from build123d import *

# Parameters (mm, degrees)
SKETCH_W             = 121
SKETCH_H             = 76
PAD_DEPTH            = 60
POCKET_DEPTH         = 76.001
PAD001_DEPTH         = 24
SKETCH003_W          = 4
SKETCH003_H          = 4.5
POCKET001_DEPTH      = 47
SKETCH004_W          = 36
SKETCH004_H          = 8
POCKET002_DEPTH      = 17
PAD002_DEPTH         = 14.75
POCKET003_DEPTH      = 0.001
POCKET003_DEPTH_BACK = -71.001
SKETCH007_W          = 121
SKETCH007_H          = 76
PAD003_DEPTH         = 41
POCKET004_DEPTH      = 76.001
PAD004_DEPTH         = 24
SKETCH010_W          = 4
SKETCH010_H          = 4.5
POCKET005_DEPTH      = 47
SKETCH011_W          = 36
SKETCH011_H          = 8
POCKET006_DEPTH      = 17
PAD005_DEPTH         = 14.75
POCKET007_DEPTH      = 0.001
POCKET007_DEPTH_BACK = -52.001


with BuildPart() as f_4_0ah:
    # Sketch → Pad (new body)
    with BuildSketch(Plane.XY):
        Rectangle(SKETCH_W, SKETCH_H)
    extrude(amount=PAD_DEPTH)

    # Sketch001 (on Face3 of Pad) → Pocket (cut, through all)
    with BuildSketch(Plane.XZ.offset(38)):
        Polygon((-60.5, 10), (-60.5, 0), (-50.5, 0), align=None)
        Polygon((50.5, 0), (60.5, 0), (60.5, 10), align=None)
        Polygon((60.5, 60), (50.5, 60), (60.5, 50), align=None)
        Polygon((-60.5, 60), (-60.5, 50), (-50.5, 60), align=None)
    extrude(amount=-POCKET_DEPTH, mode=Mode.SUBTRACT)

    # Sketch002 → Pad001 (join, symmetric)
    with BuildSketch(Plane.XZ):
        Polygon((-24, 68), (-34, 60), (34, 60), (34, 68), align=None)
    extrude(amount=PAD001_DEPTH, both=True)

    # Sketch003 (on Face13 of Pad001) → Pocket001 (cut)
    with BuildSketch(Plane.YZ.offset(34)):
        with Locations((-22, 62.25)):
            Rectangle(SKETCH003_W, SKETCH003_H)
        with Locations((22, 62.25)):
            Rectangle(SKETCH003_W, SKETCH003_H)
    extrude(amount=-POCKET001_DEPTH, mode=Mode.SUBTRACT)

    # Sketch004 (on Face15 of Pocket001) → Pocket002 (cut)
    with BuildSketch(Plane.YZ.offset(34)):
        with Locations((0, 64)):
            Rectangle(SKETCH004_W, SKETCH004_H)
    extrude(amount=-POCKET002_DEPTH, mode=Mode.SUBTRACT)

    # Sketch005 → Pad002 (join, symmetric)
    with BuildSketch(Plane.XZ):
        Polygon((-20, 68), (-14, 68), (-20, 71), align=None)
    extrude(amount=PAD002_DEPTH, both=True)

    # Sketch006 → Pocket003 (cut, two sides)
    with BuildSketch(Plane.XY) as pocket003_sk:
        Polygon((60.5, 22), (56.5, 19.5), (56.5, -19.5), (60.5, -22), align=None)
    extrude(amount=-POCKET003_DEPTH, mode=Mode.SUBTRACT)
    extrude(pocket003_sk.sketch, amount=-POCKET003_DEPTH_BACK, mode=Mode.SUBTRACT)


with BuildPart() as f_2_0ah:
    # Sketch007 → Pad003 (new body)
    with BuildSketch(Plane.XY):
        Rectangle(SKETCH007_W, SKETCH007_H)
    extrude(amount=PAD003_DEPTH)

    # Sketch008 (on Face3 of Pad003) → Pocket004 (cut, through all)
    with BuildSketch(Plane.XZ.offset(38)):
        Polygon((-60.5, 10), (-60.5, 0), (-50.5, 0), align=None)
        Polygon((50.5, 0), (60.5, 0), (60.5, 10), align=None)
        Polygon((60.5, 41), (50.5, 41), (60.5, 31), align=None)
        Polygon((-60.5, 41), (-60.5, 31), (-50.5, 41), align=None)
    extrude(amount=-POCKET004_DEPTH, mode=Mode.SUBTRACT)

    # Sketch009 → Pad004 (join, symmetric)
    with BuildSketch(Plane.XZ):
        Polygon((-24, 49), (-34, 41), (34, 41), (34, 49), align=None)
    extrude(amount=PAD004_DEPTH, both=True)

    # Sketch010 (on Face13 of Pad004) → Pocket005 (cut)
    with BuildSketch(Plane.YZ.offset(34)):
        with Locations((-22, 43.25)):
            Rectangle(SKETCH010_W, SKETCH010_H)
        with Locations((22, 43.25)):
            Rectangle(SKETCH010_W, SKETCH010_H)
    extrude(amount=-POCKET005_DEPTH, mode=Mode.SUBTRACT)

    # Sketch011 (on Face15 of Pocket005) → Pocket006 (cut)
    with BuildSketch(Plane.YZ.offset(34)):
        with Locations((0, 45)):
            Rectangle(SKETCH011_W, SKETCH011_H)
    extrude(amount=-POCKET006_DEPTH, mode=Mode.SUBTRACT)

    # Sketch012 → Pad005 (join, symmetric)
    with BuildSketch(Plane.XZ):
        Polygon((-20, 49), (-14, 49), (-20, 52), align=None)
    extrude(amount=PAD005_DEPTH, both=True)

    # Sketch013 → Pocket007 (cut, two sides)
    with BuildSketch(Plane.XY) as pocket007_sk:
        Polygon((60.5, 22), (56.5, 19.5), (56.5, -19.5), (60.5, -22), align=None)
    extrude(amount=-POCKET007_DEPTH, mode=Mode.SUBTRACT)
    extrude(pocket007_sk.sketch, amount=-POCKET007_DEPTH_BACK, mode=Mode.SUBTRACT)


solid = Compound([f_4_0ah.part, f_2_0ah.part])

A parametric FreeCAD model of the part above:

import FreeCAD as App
import Part
import Sketcher
from FreeCAD import Vector

doc = App.newDocument("Part")
body = doc.addObject("PartDesign::Body", "Body")

sketch1 = body.newObject("Sketcher::SketchObject", "Sketch")
sketch1.AttachmentSupport = (doc.getObject("XY_Plane"), [""])
sketch1.MapMode = "FlatFace"
sketch1.addGeometry(Part.LineSegment(Vector(-60, 38, 0), Vector(-60, -38, 0)), False)
sketch1.addGeometry(Part.LineSegment(Vector(-60, -38, 0), Vector(60, -38, 0)), False)
sketch1.addGeometry(Part.LineSegment(Vector(60, -38, 0), Vector(60, 38, 0)), False)
sketch1.addGeometry(Part.LineSegment(Vector(60, 38, 0), Vector(-60, 38, 0)), False)
sketch1.addConstraint(Sketcher.Constraint("Coincident", 0, 2, 1, 1))
sketch1.addConstraint(Sketcher.Constraint("Coincident", 1, 2, 2, 1))
sketch1.addConstraint(Sketcher.Constraint("Coincident", 2, 2, 3, 1))
sketch1.addConstraint(Sketcher.Constraint("Coincident", 3, 2, 0, 1))
sketch1.addConstraint(Sketcher.Constraint("Vertical", 0))
sketch1.addConstraint(Sketcher.Constraint("Horizontal", 1))
sketch1.addConstraint(Sketcher.Constraint("Vertical", 2))
sketch1.addConstraint(Sketcher.Constraint("Horizontal", 3))
sketch1.addConstraint(Sketcher.Constraint("Symmetric", 0, 2, 2, 2, -1, 1))
sketch1.addConstraint(Sketcher.Constraint("DistanceX", 1, 1, 1, 2, 121.0))
sketch1.addConstraint(Sketcher.Constraint("DistanceY", 0, 2, 0, 1, 76.0))
pad1 = body.newObject("PartDesign::Pad", "Pad")
pad1.Profile = sketch1
pad1.Length = 60

sketch2 = body.newObject("Sketcher::SketchObject", "Sketch001")
sketch2.AttachmentSupport = (doc.getObject("XZ_Plane"), [""])
sketch2.MapMode = "FlatFace"
sketch2.AttachmentOffset = App.Placement(Vector(0, 0, 38), App.Rotation())
sketch2.addGeometry(Part.LineSegment(Vector(-60, 10, 0), Vector(-60, 0, 0)), False)
sketch2.addGeometry(Part.LineSegment(Vector(-60, 0, 0), Vector(-50, 0, 0)), False)
sketch2.addGeometry(Part.LineSegment(Vector(-50, 0, 0), Vector(-60, 10, 0)), False)
sketch2.addGeometry(Part.LineSegment(Vector(50, 0, 0), Vector(60, 0, 0)), False)
sketch2.addGeometry(Part.LineSegment(Vector(60, 0, 0), Vector(60, 10, 0)), False)
sketch2.addGeometry(Part.LineSegment(Vector(60, 10, 0), Vector(50, 0, 0)), False)
sketch2.addGeometry(Part.LineSegment(Vector(60, 60, 0), Vector(50, 60, 0)), False)
sketch2.addGeometry(Part.LineSegment(Vector(50, 60, 0), Vector(60, 50, 0)), False)
sketch2.addGeometry(Part.LineSegment(Vector(60, 50, 0), Vector(60, 60, 0)), False)
sketch2.addGeometry(Part.LineSegment(Vector(-60, 60, 0), Vector(-60, 50, 0)), False)
sketch2.addGeometry(Part.LineSegment(Vector(-60, 50, 0), Vector(-50, 60, 0)), False)
sketch2.addGeometry(Part.LineSegment(Vector(-50, 60, 0), Vector(-60, 60, 0)), False)
sketch2.addConstraint(Sketcher.Constraint("Coincident", 0, 2, 1, 1))
sketch2.addConstraint(Sketcher.Constraint("Coincident", 1, 2, 2, 1))
sketch2.addConstraint(Sketcher.Constraint("Coincident", 2, 2, 0, 1))
sketch2.addConstraint(Sketcher.Constraint("Coincident", 3, 2, 4, 1))
sketch2.addConstraint(Sketcher.Constraint("Coincident", 4, 2, 5, 1))
sketch2.addConstraint(Sketcher.Constraint("Coincident", 5, 2, 3, 1))
sketch2.addConstraint(Sketcher.Constraint("Coincident", 6, 2, 7, 1))
sketch2.addConstraint(Sketcher.Constraint("Coincident", 7, 2, 8, 1))
sketch2.addConstraint(Sketcher.Constraint("Coincident", 8, 2, 6, 1))
sketch2.addConstraint(Sketcher.Constraint("Coincident", 9, 2, 10, 1))
sketch2.addConstraint(Sketcher.Constraint("Coincident", 10, 2, 11, 1))
sketch2.addConstraint(Sketcher.Constraint("Coincident", 11, 2, 9, 1))
sketch2.addConstraint(Sketcher.Constraint("Vertical", 0))
sketch2.addConstraint(Sketcher.Constraint("Horizontal", 1))
sketch2.addConstraint(Sketcher.Constraint("Horizontal", 3))
sketch2.addConstraint(Sketcher.Constraint("Vertical", 4))
sketch2.addConstraint(Sketcher.Constraint("Horizontal", 6))
sketch2.addConstraint(Sketcher.Constraint("Vertical", 8))
sketch2.addConstraint(Sketcher.Constraint("Vertical", 9))
sketch2.addConstraint(Sketcher.Constraint("Horizontal", 11))
sketch2.addConstraint(Sketcher.Constraint("Symmetric", 0, 2, 3, 2, -1, 1))
sketch2.addConstraint(Sketcher.Constraint("Symmetric", 1, 2, 5, 2, -2))
sketch2.addConstraint(Sketcher.Constraint("Symmetric", 7, 2, 9, 2, -2))
sketch2.addConstraint(Sketcher.Constraint("Symmetric", 6, 2, 10, 2, -2))
sketch2.addConstraint(Sketcher.Constraint("Perpendicular", 2, 5))
sketch2.addConstraint(Sketcher.Constraint("Perpendicular", 5, 7))
sketch2.addConstraint(Sketcher.Constraint("Perpendicular", 7, 10))
sketch2.addConstraint(Sketcher.Constraint("Vertical", 5, 2, 6, 2))
sketch2.addConstraint(Sketcher.Constraint("Vertical", 4, 2, 7, 2))
sketch2.addConstraint(Sketcher.Constraint("DistanceX", 1, 1, 1, 2, 10.0))
sketch2.addConstraint(Sketcher.Constraint("DistanceY", -1, 1, 6, 2, 60.0))
sketch2.addConstraint(Sketcher.Constraint("DistanceX", 1, 2, 3, 2, 111.0))
pocket1 = body.newObject("PartDesign::Pocket", "Pocket")
pocket1.Profile = sketch2
pocket1.Type = "ThroughAll"

sketch3 = body.newObject("Sketcher::SketchObject", "Sketch002")
sketch3.AttachmentSupport = (doc.getObject("XZ_Plane"), [""])
sketch3.MapMode = "FlatFace"
sketch3.addGeometry(Part.LineSegment(Vector(-24, 68, 0), Vector(-34, 60, 0)), False)
sketch3.addGeometry(Part.LineSegment(Vector(-34, 60, 0), Vector(34, 60, 0)), False)
sketch3.addGeometry(Part.LineSegment(Vector(34, 60, 0), Vector(34, 68, 0)), False)
sketch3.addGeometry(Part.LineSegment(Vector(34, 68, 0), Vector(-24, 68, 0)), False)
sketch3.addConstraint(Sketcher.Constraint("Coincident", 0, 2, 1, 1))
sketch3.addConstraint(Sketcher.Constraint("Coincident", 1, 2, 2, 1))
sketch3.addConstraint(Sketcher.Constraint("Coincident", 2, 2, 3, 1))
sketch3.addConstraint(Sketcher.Constraint("Coincident", 3, 2, 0, 1))
sketch3.addConstraint(Sketcher.Constraint("Horizontal", 1))
sketch3.addConstraint(Sketcher.Constraint("Vertical", 2))
sketch3.addConstraint(Sketcher.Constraint("Horizontal", 3))
sketch3.addConstraint(Sketcher.Constraint("DistanceX", 1, 1, 1, 2, 68.0))
sketch3.addConstraint(Sketcher.Constraint("DistanceX", 3, 2, 3, 1, 58.0))
sketch3.addConstraint(Sketcher.Constraint("DistanceY", 2, 1, 2, 2, 8.0))
sketch3.addConstraint(Sketcher.Constraint("DistanceX", 0, 2, -1, 1, 34.0))
sketch3.addConstraint(Sketcher.Constraint("DistanceY", -1, 1, 0, 2, 60.0))
pad2 = body.newObject("PartDesign::Pad", "Pad001")
pad2.Profile = sketch3
pad2.Length = 48
pad2.Midplane = True

sketch4 = body.newObject("Sketcher::SketchObject", "Sketch003")
sketch4.AttachmentSupport = (doc.getObject("YZ_Plane"), [""])
sketch4.MapMode = "FlatFace"
sketch4.AttachmentOffset = App.Placement(Vector(0, 0, 34), App.Rotation())
sketch4.addGeometry(Part.LineSegment(Vector(-24, 64.5, 0), Vector(-24, 60, 0)), False)
sketch4.addGeometry(Part.LineSegment(Vector(-24, 60, 0), Vector(-20, 60, 0)), False)
sketch4.addGeometry(Part.LineSegment(Vector(-20, 60, 0), Vector(-20, 64.5, 0)), False)
sketch4.addGeometry(Part.LineSegment(Vector(-20, 64.5, 0), Vector(-24, 64.5, 0)), False)
sketch4.addGeometry(Part.LineSegment(Vector(20, 64.5, 0), Vector(20, 60, 0)), False)
sketch4.addGeometry(Part.LineSegment(Vector(20, 60, 0), Vector(24, 60, 0)), False)
sketch4.addGeometry(Part.LineSegment(Vector(24, 60, 0), Vector(24, 64.5, 0)), False)
sketch4.addGeometry(Part.LineSegment(Vector(24, 64.5, 0), Vector(20, 64.5, 0)), False)
sketch4.addConstraint(Sketcher.Constraint("Coincident", 0, 2, 1, 1))
sketch4.addConstraint(Sketcher.Constraint("Coincident", 1, 2, 2, 1))
sketch4.addConstraint(Sketcher.Constraint("Coincident", 2, 2, 3, 1))
sketch4.addConstraint(Sketcher.Constraint("Coincident", 3, 2, 0, 1))
sketch4.addConstraint(Sketcher.Constraint("Coincident", 4, 2, 5, 1))
sketch4.addConstraint(Sketcher.Constraint("Coincident", 5, 2, 6, 1))
sketch4.addConstraint(Sketcher.Constraint("Coincident", 6, 2, 7, 1))
sketch4.addConstraint(Sketcher.Constraint("Coincident", 7, 2, 4, 1))
sketch4.addConstraint(Sketcher.Constraint("Vertical", 0))
sketch4.addConstraint(Sketcher.Constraint("Horizontal", 1))
sketch4.addConstraint(Sketcher.Constraint("Vertical", 2))
sketch4.addConstraint(Sketcher.Constraint("Horizontal", 3))
sketch4.addConstraint(Sketcher.Constraint("Vertical", 4))
sketch4.addConstraint(Sketcher.Constraint("Horizontal", 5))
sketch4.addConstraint(Sketcher.Constraint("Vertical", 6))
sketch4.addConstraint(Sketcher.Constraint("Horizontal", 7))
sketch4.addConstraint(Sketcher.Constraint("Symmetric", 1, 2, 4, 2, -2))
sketch4.addConstraint(Sketcher.Constraint("Symmetric", 3, 2, 6, 2, -2))
sketch4.addConstraint(Sketcher.Constraint("DistanceX", 1, 1, 1, 2, 4.0))
sketch4.addConstraint(Sketcher.Constraint("DistanceY", 0, 2, 0, 1, 4.5))
sketch4.addConstraint(Sketcher.Constraint("DistanceX", 0, 2, -1, 1, 24.0))
sketch4.addConstraint(Sketcher.Constraint("DistanceY", -1, 1, 0, 2, 60.0))
pocket2 = body.newObject("PartDesign::Pocket", "Pocket001")
pocket2.Profile = sketch4
pocket2.Length = 47

sketch5 = body.newObject("Sketcher::SketchObject", "Sketch004")
sketch5.AttachmentSupport = (doc.getObject("YZ_Plane"), [""])
sketch5.MapMode = "FlatFace"
sketch5.AttachmentOffset = App.Placement(Vector(0, 0, 34), App.Rotation())
sketch5.addGeometry(Part.LineSegment(Vector(-18, 68, 0), Vector(-18, 60, 0)), False)
sketch5.addGeometry(Part.LineSegment(Vector(-18, 60, 0), Vector(18, 60, 0)), False)
sketch5.addGeometry(Part.LineSegment(Vector(18, 60, 0), Vector(18, 68, 0)), False)
sketch5.addGeometry(Part.LineSegment(Vector(18, 68, 0), Vector(-18, 68, 0)), False)
sketch5.addConstraint(Sketcher.Constraint("Coincident", 0, 2, 1, 1))
sketch5.addConstraint(Sketcher.Constraint("Coincident", 1, 2, 2, 1))
sketch5.addConstraint(Sketcher.Constraint("Coincident", 2, 2, 3, 1))
sketch5.addConstraint(Sketcher.Constraint("Coincident", 3, 2, 0, 1))
sketch5.addConstraint(Sketcher.Constraint("Vertical", 0))
sketch5.addConstraint(Sketcher.Constraint("Horizontal", 1))
sketch5.addConstraint(Sketcher.Constraint("Vertical", 2))
sketch5.addConstraint(Sketcher.Constraint("Horizontal", 3))
sketch5.addConstraint(Sketcher.Constraint("DistanceX", 1, 1, 1, 2, 36.0))
sketch5.addConstraint(Sketcher.Constraint("DistanceY", 0, 2, 0, 1, 8.0))
sketch5.addConstraint(Sketcher.Constraint("DistanceX", 0, 2, -1, 1, 18.0))
sketch5.addConstraint(Sketcher.Constraint("DistanceY", -1, 1, 0, 2, 60.0))
pocket3 = body.newObject("PartDesign::Pocket", "Pocket002")
pocket3.Profile = sketch5
pocket3.Length = 17

sketch6 = body.newObject("Sketcher::SketchObject", "Sketch005")
sketch6.AttachmentSupport = (doc.getObject("XZ_Plane"), [""])
sketch6.MapMode = "FlatFace"
sketch6.addGeometry(Part.LineSegment(Vector(-20, 68, 0), Vector(-14, 68, 0)), False)
sketch6.addGeometry(Part.LineSegment(Vector(-14, 68, 0), Vector(-20, 71, 0)), False)
sketch6.addGeometry(Part.LineSegment(Vector(-20, 71, 0), Vector(-20, 68, 0)), False)
sketch6.addConstraint(Sketcher.Constraint("Coincident", 0, 2, 1, 1))
sketch6.addConstraint(Sketcher.Constraint("Coincident", 1, 2, 2, 1))
sketch6.addConstraint(Sketcher.Constraint("Coincident", 2, 2, 0, 1))
sketch6.addConstraint(Sketcher.Constraint("Horizontal", 0))
sketch6.addConstraint(Sketcher.Constraint("Vertical", 2))
sketch6.addConstraint(Sketcher.Constraint("DistanceX", 0, 1, 0, 2, 6.0))
sketch6.addConstraint(Sketcher.Constraint("DistanceY", 2, 2, 2, 1, 3.0))
sketch6.addConstraint(Sketcher.Constraint("DistanceX", 0, 2, -1, 1, 14.0))
sketch6.addConstraint(Sketcher.Constraint("DistanceY", -1, 1, 0, 2, 68.0))
pad3 = body.newObject("PartDesign::Pad", "Pad002")
pad3.Profile = sketch6
pad3.Length = 29.5
pad3.Midplane = True

sketch7 = body.newObject("Sketcher::SketchObject", "Sketch006")
sketch7.AttachmentSupport = (doc.getObject("XY_Plane"), [""])
sketch7.MapMode = "FlatFace"
sketch7.addGeometry(Part.LineSegment(Vector(60.5, 22, 0), Vector(56.5, 19.5, 0)), False)
sketch7.addGeometry(Part.LineSegment(Vector(56.5, 19.5, 0), Vector(56.5, -19.5, 0)), False)
sketch7.addGeometry(Part.LineSegment(Vector(56.5, -19.5, 0), Vector(60.5, -22, 0)), False)
sketch7.addGeometry(Part.LineSegment(Vector(60.5, -22, 0), Vector(60.5, 22, 0)), False)
sketch7.addConstraint(Sketcher.Constraint("Coincident", 0, 2, 1, 1))
sketch7.addConstraint(Sketcher.Constraint("Coincident", 1, 2, 2, 1))
sketch7.addConstraint(Sketcher.Constraint("Coincident", 2, 2, 3, 1))
sketch7.addConstraint(Sketcher.Constraint("Coincident", 3, 2, 0, 1))
sketch7.addConstraint(Sketcher.Constraint("Vertical", 1))
sketch7.addConstraint(Sketcher.Constraint("Vertical", 3))
sketch7.addConstraint(Sketcher.Constraint("Equal", 0, 2))
sketch7.addConstraint(Sketcher.Constraint("DistanceY", 1, 2, 1, 1, 39.0))
sketch7.addConstraint(Sketcher.Constraint("DistanceY", 3, 1, 3, 2, 44.0))
sketch7.addConstraint(Sketcher.Constraint("DistanceY", 2, 2, -1, 1, 22.0))
sketch7.addConstraint(Sketcher.Constraint("DistanceX", 1, 2, 2, 2, 4.0))
sketch7.addConstraint(Sketcher.Constraint("DistanceX", -1, 1, 0, 2, 56.5))
pocket4 = body.newObject("PartDesign::Pocket", "Pocket003")
pocket4.Profile = sketch7
pocket4.Type = "ThroughAll"
pocket4.Midplane = True
body2 = doc.addObject("PartDesign::Body", "Body001")

sketch8 = body2.newObject("Sketcher::SketchObject", "Sketch007")
sketch8.AttachmentSupport = (doc.getObject("XY_Plane001"), [""])
sketch8.MapMode = "FlatFace"
sketch8.addGeometry(Part.LineSegment(Vector(-60, 38, 0), Vector(-60, -38, 0)), False)
sketch8.addGeometry(Part.LineSegment(Vector(-60, -38, 0), Vector(60, -38, 0)), False)
sketch8.addGeometry(Part.LineSegment(Vector(60, -38, 0), Vector(60, 38, 0)), False)
sketch8.addGeometry(Part.LineSegment(Vector(60, 38, 0), Vector(-60, 38, 0)), False)
sketch8.addConstraint(Sketcher.Constraint("Coincident", 0, 2, 1, 1))
sketch8.addConstraint(Sketcher.Constraint("Coincident", 1, 2, 2, 1))
sketch8.addConstraint(Sketcher.Constraint("Coincident", 2, 2, 3, 1))
sketch8.addConstraint(Sketcher.Constraint("Coincident", 3, 2, 0, 1))
sketch8.addConstraint(Sketcher.Constraint("Vertical", 0))
sketch8.addConstraint(Sketcher.Constraint("Horizontal", 1))
sketch8.addConstraint(Sketcher.Constraint("Vertical", 2))
sketch8.addConstraint(Sketcher.Constraint("Horizontal", 3))
sketch8.addConstraint(Sketcher.Constraint("Symmetric", 0, 2, 2, 2, -1, 1))
sketch8.addConstraint(Sketcher.Constraint("DistanceX", 1, 1, 1, 2, 121.0))
sketch8.addConstraint(Sketcher.Constraint("DistanceY", 0, 2, 0, 1, 76.0))
pad4 = body2.newObject("PartDesign::Pad", "Pad003")
pad4.Profile = sketch8
pad4.Length = 41

sketch9 = body2.newObject("Sketcher::SketchObject", "Sketch008")
sketch9.AttachmentSupport = (doc.getObject("XZ_Plane001"), [""])
sketch9.MapMode = "FlatFace"
sketch9.AttachmentOffset = App.Placement(Vector(0, 0, 38), App.Rotation())
sketch9.addGeometry(Part.LineSegment(Vector(-60, 10, 0), Vector(-60, 0, 0)), False)
sketch9.addGeometry(Part.LineSegment(Vector(-60, 0, 0), Vector(-50, 0, 0)), False)
sketch9.addGeometry(Part.LineSegment(Vector(-50, 0, 0), Vector(-60, 10, 0)), False)
sketch9.addGeometry(Part.LineSegment(Vector(50, 0, 0), Vector(60, 0, 0)), False)
sketch9.addGeometry(Part.LineSegment(Vector(60, 0, 0), Vector(60, 10, 0)), False)
sketch9.addGeometry(Part.LineSegment(Vector(60, 10, 0), Vector(50, 0, 0)), False)
sketch9.addGeometry(Part.LineSegment(Vector(60, 41, 0), Vector(50, 41, 0)), False)
sketch9.addGeometry(Part.LineSegment(Vector(50, 41, 0), Vector(60, 31, 0)), False)
sketch9.addGeometry(Part.LineSegment(Vector(60, 31, 0), Vector(60, 41, 0)), False)
sketch9.addGeometry(Part.LineSegment(Vector(-60, 41, 0), Vector(-60, 31, 0)), False)
sketch9.addGeometry(Part.LineSegment(Vector(-60, 31, 0), Vector(-50, 41, 0)), False)
sketch9.addGeometry(Part.LineSegment(Vector(-50, 41, 0), Vector(-60, 41, 0)), False)
sketch9.addConstraint(Sketcher.Constraint("Coincident", 0, 2, 1, 1))
sketch9.addConstraint(Sketcher.Constraint("Coincident", 1, 2, 2, 1))
sketch9.addConstraint(Sketcher.Constraint("Coincident", 2, 2, 0, 1))
sketch9.addConstraint(Sketcher.Constraint("Coincident", 3, 2, 4, 1))
sketch9.addConstraint(Sketcher.Constraint("Coincident", 4, 2, 5, 1))
sketch9.addConstraint(Sketcher.Constraint("Coincident", 5, 2, 3, 1))
sketch9.addConstraint(Sketcher.Constraint("Coincident", 6, 2, 7, 1))
sketch9.addConstraint(Sketcher.Constraint("Coincident", 7, 2, 8, 1))
sketch9.addConstraint(Sketcher.Constraint("Coincident", 8, 2, 6, 1))
sketch9.addConstraint(Sketcher.Constraint("Coincident", 9, 2, 10, 1))
sketch9.addConstraint(Sketcher.Constraint("Coincident", 10, 2, 11, 1))
sketch9.addConstraint(Sketcher.Constraint("Coincident", 11, 2, 9, 1))
sketch9.addConstraint(Sketcher.Constraint("Vertical", 0))
sketch9.addConstraint(Sketcher.Constraint("Horizontal", 1))
sketch9.addConstraint(Sketcher.Constraint("Horizontal", 3))
sketch9.addConstraint(Sketcher.Constraint("Vertical", 4))
sketch9.addConstraint(Sketcher.Constraint("Horizontal", 6))
sketch9.addConstraint(Sketcher.Constraint("Vertical", 8))
sketch9.addConstraint(Sketcher.Constraint("Vertical", 9))
sketch9.addConstraint(Sketcher.Constraint("Horizontal", 11))
sketch9.addConstraint(Sketcher.Constraint("Symmetric", 0, 2, 3, 2, -1, 1))
sketch9.addConstraint(Sketcher.Constraint("Symmetric", 1, 2, 5, 2, -2))
sketch9.addConstraint(Sketcher.Constraint("Symmetric", 7, 2, 9, 2, -2))
sketch9.addConstraint(Sketcher.Constraint("Symmetric", 6, 2, 10, 2, -2))
sketch9.addConstraint(Sketcher.Constraint("Perpendicular", 2, 5))
sketch9.addConstraint(Sketcher.Constraint("Perpendicular", 5, 7))
sketch9.addConstraint(Sketcher.Constraint("Perpendicular", 7, 10))
sketch9.addConstraint(Sketcher.Constraint("Vertical", 5, 2, 6, 2))
sketch9.addConstraint(Sketcher.Constraint("Vertical", 4, 2, 7, 2))
sketch9.addConstraint(Sketcher.Constraint("DistanceX", 1, 1, 1, 2, 10.0))
sketch9.addConstraint(Sketcher.Constraint("DistanceY", -1, 1, 6, 2, 41.0))
sketch9.addConstraint(Sketcher.Constraint("DistanceX", 1, 2, 3, 2, 111.0))
pocket5 = body2.newObject("PartDesign::Pocket", "Pocket004")
pocket5.Profile = sketch9
pocket5.Type = "ThroughAll"

sketch10 = body2.newObject("Sketcher::SketchObject", "Sketch009")
sketch10.AttachmentSupport = (doc.getObject("XZ_Plane001"), [""])
sketch10.MapMode = "FlatFace"
sketch10.addGeometry(Part.LineSegment(Vector(-24, 49, 0), Vector(-34, 41, 0)), False)
sketch10.addGeometry(Part.LineSegment(Vector(-34, 41, 0), Vector(34, 41, 0)), False)
sketch10.addGeometry(Part.LineSegment(Vector(34, 41, 0), Vector(34, 49, 0)), False)
sketch10.addGeometry(Part.LineSegment(Vector(34, 49, 0), Vector(-24, 49, 0)), False)
sketch10.addConstraint(Sketcher.Constraint("Coincident", 0, 2, 1, 1))
sketch10.addConstraint(Sketcher.Constraint("Coincident", 1, 2, 2, 1))
sketch10.addConstraint(Sketcher.Constraint("Coincident", 2, 2, 3, 1))
sketch10.addConstraint(Sketcher.Constraint("Coincident", 3, 2, 0, 1))
sketch10.addConstraint(Sketcher.Constraint("Horizontal", 1))
sketch10.addConstraint(Sketcher.Constraint("Vertical", 2))
sketch10.addConstraint(Sketcher.Constraint("Horizontal", 3))
sketch10.addConstraint(Sketcher.Constraint("DistanceX", 1, 1, 1, 2, 68.0))
sketch10.addConstraint(Sketcher.Constraint("DistanceX", 3, 2, 3, 1, 58.0))
sketch10.addConstraint(Sketcher.Constraint("DistanceY", 2, 1, 2, 2, 8.0))
sketch10.addConstraint(Sketcher.Constraint("DistanceX", 0, 2, -1, 1, 34.0))
sketch10.addConstraint(Sketcher.Constraint("DistanceY", -1, 1, 0, 2, 41.0))
pad5 = body2.newObject("PartDesign::Pad", "Pad004")
pad5.Profile = sketch10
pad5.Length = 48
pad5.Midplane = True

sketch11 = body2.newObject("Sketcher::SketchObject", "Sketch010")
sketch11.AttachmentSupport = (doc.getObject("YZ_Plane001"), [""])
sketch11.MapMode = "FlatFace"
sketch11.AttachmentOffset = App.Placement(Vector(0, 0, 34), App.Rotation())
sketch11.addGeometry(Part.LineSegment(Vector(-24, 45.5, 0), Vector(-24, 41, 0)), False)
sketch11.addGeometry(Part.LineSegment(Vector(-24, 41, 0), Vector(-20, 41, 0)), False)
sketch11.addGeometry(Part.LineSegment(Vector(-20, 41, 0), Vector(-20, 45.5, 0)), False)
sketch11.addGeometry(Part.LineSegment(Vector(-20, 45.5, 0), Vector(-24, 45.5, 0)), False)
sketch11.addGeometry(Part.LineSegment(Vector(20, 45.5, 0), Vector(20, 41, 0)), False)
sketch11.addGeometry(Part.LineSegment(Vector(20, 41, 0), Vector(24, 41, 0)), False)
sketch11.addGeometry(Part.LineSegment(Vector(24, 41, 0), Vector(24, 45.5, 0)), False)
sketch11.addGeometry(Part.LineSegment(Vector(24, 45.5, 0), Vector(20, 45.5, 0)), False)
sketch11.addConstraint(Sketcher.Constraint("Coincident", 0, 2, 1, 1))
sketch11.addConstraint(Sketcher.Constraint("Coincident", 1, 2, 2, 1))
sketch11.addConstraint(Sketcher.Constraint("Coincident", 2, 2, 3, 1))
sketch11.addConstraint(Sketcher.Constraint("Coincident", 3, 2, 0, 1))
sketch11.addConstraint(Sketcher.Constraint("Coincident", 4, 2, 5, 1))
sketch11.addConstraint(Sketcher.Constraint("Coincident", 5, 2, 6, 1))
sketch11.addConstraint(Sketcher.Constraint("Coincident", 6, 2, 7, 1))
sketch11.addConstraint(Sketcher.Constraint("Coincident", 7, 2, 4, 1))
sketch11.addConstraint(Sketcher.Constraint("Vertical", 0))
sketch11.addConstraint(Sketcher.Constraint("Horizontal", 1))
sketch11.addConstraint(Sketcher.Constraint("Vertical", 2))
sketch11.addConstraint(Sketcher.Constraint("Horizontal", 3))
sketch11.addConstraint(Sketcher.Constraint("Vertical", 4))
sketch11.addConstraint(Sketcher.Constraint("Horizontal", 5))
sketch11.addConstraint(Sketcher.Constraint("Vertical", 6))
sketch11.addConstraint(Sketcher.Constraint("Horizontal", 7))
sketch11.addConstraint(Sketcher.Constraint("Symmetric", 1, 2, 4, 2, -2))
sketch11.addConstraint(Sketcher.Constraint("Symmetric", 3, 2, 6, 2, -2))
sketch11.addConstraint(Sketcher.Constraint("DistanceX", 1, 1, 1, 2, 4.0))
sketch11.addConstraint(Sketcher.Constraint("DistanceY", 0, 2, 0, 1, 4.5))
sketch11.addConstraint(Sketcher.Constraint("DistanceX", 0, 2, -1, 1, 24.0))
sketch11.addConstraint(Sketcher.Constraint("DistanceY", -1, 1, 0, 2, 41.0))
pocket6 = body2.newObject("PartDesign::Pocket", "Pocket005")
pocket6.Profile = sketch11
pocket6.Length = 47

sketch12 = body2.newObject("Sketcher::SketchObject", "Sketch011")
sketch12.AttachmentSupport = (doc.getObject("YZ_Plane001"), [""])
sketch12.MapMode = "FlatFace"
sketch12.AttachmentOffset = App.Placement(Vector(0, 0, 34), App.Rotation())
sketch12.addGeometry(Part.LineSegment(Vector(-18, 49, 0), Vector(-18, 41, 0)), False)
sketch12.addGeometry(Part.LineSegment(Vector(-18, 41, 0), Vector(18, 41, 0)), False)
sketch12.addGeometry(Part.LineSegment(Vector(18, 41, 0), Vector(18, 49, 0)), False)
sketch12.addGeometry(Part.LineSegment(Vector(18, 49, 0), Vector(-18, 49, 0)), False)
sketch12.addConstraint(Sketcher.Constraint("Coincident", 0, 2, 1, 1))
sketch12.addConstraint(Sketcher.Constraint("Coincident", 1, 2, 2, 1))
sketch12.addConstraint(Sketcher.Constraint("Coincident", 2, 2, 3, 1))
sketch12.addConstraint(Sketcher.Constraint("Coincident", 3, 2, 0, 1))
sketch12.addConstraint(Sketcher.Constraint("Vertical", 0))
sketch12.addConstraint(Sketcher.Constraint("Horizontal", 1))
sketch12.addConstraint(Sketcher.Constraint("Vertical", 2))
sketch12.addConstraint(Sketcher.Constraint("Horizontal", 3))
sketch12.addConstraint(Sketcher.Constraint("DistanceX", 1, 1, 1, 2, 36.0))
sketch12.addConstraint(Sketcher.Constraint("DistanceY", 0, 2, 0, 1, 8.0))
sketch12.addConstraint(Sketcher.Constraint("DistanceX", 0, 2, -1, 1, 18.0))
sketch12.addConstraint(Sketcher.Constraint("DistanceY", -1, 1, 0, 2, 41.0))
pocket7 = body2.newObject("PartDesign::Pocket", "Pocket006")
pocket7.Profile = sketch12
pocket7.Length = 17

sketch13 = body2.newObject("Sketcher::SketchObject", "Sketch012")
sketch13.AttachmentSupport = (doc.getObject("XZ_Plane001"), [""])
sketch13.MapMode = "FlatFace"
sketch13.addGeometry(Part.LineSegment(Vector(-20, 49, 0), Vector(-14, 49, 0)), False)
sketch13.addGeometry(Part.LineSegment(Vector(-14, 49, 0), Vector(-20, 52, 0)), False)
sketch13.addGeometry(Part.LineSegment(Vector(-20, 52, 0), Vector(-20, 49, 0)), False)
sketch13.addConstraint(Sketcher.Constraint("Coincident", 0, 2, 1, 1))
sketch13.addConstraint(Sketcher.Constraint("Coincident", 1, 2, 2, 1))
sketch13.addConstraint(Sketcher.Constraint("Coincident", 2, 2, 0, 1))
sketch13.addConstraint(Sketcher.Constraint("Horizontal", 0))
sketch13.addConstraint(Sketcher.Constraint("Vertical", 2))
sketch13.addConstraint(Sketcher.Constraint("DistanceX", 0, 1, 0, 2, 6.0))
sketch13.addConstraint(Sketcher.Constraint("DistanceY", 2, 2, 2, 1, 3.0))
sketch13.addConstraint(Sketcher.Constraint("DistanceX", 0, 2, -1, 1, 14.0))
sketch13.addConstraint(Sketcher.Constraint("DistanceY", -1, 1, 0, 2, 49.0))
pad6 = body2.newObject("PartDesign::Pad", "Pad005")
pad6.Profile = sketch13
pad6.Length = 29.5
pad6.Midplane = True

sketch14 = body2.newObject("Sketcher::SketchObject", "Sketch013")
sketch14.AttachmentSupport = (doc.getObject("XY_Plane001"), [""])
sketch14.MapMode = "FlatFace"
sketch14.addGeometry(Part.LineSegment(Vector(60.5, 22, 0), Vector(56.5, 19.5, 0)), False)
sketch14.addGeometry(Part.LineSegment(Vector(56.5, 19.5, 0), Vector(56.5, -19.5, 0)), False)
sketch14.addGeometry(Part.LineSegment(Vector(56.5, -19.5, 0), Vector(60.5, -22, 0)), False)
sketch14.addGeometry(Part.LineSegment(Vector(60.5, -22, 0), Vector(60.5, 22, 0)), False)
sketch14.addConstraint(Sketcher.Constraint("Coincident", 0, 2, 1, 1))
sketch14.addConstraint(Sketcher.Constraint("Coincident", 1, 2, 2, 1))
sketch14.addConstraint(Sketcher.Constraint("Coincident", 2, 2, 3, 1))
sketch14.addConstraint(Sketcher.Constraint("Coincident", 3, 2, 0, 1))
sketch14.addConstraint(Sketcher.Constraint("Vertical", 1))
sketch14.addConstraint(Sketcher.Constraint("Vertical", 3))
sketch14.addConstraint(Sketcher.Constraint("Equal", 0, 2))
sketch14.addConstraint(Sketcher.Constraint("DistanceY", 1, 2, 1, 1, 39.0))
sketch14.addConstraint(Sketcher.Constraint("DistanceY", 3, 1, 3, 2, 44.0))
sketch14.addConstraint(Sketcher.Constraint("DistanceY", 2, 2, -1, 1, 22.0))
sketch14.addConstraint(Sketcher.Constraint("DistanceX", 1, 2, 2, 2, 4.0))
sketch14.addConstraint(Sketcher.Constraint("DistanceX", -1, 1, 0, 2, 56.5))
pocket8 = body2.newObject("PartDesign::Pocket", "Pocket007")
pocket8.Profile = sketch14
pocket8.Type = "ThroughAll"
pocket8.Midplane = True

doc.recompute()
